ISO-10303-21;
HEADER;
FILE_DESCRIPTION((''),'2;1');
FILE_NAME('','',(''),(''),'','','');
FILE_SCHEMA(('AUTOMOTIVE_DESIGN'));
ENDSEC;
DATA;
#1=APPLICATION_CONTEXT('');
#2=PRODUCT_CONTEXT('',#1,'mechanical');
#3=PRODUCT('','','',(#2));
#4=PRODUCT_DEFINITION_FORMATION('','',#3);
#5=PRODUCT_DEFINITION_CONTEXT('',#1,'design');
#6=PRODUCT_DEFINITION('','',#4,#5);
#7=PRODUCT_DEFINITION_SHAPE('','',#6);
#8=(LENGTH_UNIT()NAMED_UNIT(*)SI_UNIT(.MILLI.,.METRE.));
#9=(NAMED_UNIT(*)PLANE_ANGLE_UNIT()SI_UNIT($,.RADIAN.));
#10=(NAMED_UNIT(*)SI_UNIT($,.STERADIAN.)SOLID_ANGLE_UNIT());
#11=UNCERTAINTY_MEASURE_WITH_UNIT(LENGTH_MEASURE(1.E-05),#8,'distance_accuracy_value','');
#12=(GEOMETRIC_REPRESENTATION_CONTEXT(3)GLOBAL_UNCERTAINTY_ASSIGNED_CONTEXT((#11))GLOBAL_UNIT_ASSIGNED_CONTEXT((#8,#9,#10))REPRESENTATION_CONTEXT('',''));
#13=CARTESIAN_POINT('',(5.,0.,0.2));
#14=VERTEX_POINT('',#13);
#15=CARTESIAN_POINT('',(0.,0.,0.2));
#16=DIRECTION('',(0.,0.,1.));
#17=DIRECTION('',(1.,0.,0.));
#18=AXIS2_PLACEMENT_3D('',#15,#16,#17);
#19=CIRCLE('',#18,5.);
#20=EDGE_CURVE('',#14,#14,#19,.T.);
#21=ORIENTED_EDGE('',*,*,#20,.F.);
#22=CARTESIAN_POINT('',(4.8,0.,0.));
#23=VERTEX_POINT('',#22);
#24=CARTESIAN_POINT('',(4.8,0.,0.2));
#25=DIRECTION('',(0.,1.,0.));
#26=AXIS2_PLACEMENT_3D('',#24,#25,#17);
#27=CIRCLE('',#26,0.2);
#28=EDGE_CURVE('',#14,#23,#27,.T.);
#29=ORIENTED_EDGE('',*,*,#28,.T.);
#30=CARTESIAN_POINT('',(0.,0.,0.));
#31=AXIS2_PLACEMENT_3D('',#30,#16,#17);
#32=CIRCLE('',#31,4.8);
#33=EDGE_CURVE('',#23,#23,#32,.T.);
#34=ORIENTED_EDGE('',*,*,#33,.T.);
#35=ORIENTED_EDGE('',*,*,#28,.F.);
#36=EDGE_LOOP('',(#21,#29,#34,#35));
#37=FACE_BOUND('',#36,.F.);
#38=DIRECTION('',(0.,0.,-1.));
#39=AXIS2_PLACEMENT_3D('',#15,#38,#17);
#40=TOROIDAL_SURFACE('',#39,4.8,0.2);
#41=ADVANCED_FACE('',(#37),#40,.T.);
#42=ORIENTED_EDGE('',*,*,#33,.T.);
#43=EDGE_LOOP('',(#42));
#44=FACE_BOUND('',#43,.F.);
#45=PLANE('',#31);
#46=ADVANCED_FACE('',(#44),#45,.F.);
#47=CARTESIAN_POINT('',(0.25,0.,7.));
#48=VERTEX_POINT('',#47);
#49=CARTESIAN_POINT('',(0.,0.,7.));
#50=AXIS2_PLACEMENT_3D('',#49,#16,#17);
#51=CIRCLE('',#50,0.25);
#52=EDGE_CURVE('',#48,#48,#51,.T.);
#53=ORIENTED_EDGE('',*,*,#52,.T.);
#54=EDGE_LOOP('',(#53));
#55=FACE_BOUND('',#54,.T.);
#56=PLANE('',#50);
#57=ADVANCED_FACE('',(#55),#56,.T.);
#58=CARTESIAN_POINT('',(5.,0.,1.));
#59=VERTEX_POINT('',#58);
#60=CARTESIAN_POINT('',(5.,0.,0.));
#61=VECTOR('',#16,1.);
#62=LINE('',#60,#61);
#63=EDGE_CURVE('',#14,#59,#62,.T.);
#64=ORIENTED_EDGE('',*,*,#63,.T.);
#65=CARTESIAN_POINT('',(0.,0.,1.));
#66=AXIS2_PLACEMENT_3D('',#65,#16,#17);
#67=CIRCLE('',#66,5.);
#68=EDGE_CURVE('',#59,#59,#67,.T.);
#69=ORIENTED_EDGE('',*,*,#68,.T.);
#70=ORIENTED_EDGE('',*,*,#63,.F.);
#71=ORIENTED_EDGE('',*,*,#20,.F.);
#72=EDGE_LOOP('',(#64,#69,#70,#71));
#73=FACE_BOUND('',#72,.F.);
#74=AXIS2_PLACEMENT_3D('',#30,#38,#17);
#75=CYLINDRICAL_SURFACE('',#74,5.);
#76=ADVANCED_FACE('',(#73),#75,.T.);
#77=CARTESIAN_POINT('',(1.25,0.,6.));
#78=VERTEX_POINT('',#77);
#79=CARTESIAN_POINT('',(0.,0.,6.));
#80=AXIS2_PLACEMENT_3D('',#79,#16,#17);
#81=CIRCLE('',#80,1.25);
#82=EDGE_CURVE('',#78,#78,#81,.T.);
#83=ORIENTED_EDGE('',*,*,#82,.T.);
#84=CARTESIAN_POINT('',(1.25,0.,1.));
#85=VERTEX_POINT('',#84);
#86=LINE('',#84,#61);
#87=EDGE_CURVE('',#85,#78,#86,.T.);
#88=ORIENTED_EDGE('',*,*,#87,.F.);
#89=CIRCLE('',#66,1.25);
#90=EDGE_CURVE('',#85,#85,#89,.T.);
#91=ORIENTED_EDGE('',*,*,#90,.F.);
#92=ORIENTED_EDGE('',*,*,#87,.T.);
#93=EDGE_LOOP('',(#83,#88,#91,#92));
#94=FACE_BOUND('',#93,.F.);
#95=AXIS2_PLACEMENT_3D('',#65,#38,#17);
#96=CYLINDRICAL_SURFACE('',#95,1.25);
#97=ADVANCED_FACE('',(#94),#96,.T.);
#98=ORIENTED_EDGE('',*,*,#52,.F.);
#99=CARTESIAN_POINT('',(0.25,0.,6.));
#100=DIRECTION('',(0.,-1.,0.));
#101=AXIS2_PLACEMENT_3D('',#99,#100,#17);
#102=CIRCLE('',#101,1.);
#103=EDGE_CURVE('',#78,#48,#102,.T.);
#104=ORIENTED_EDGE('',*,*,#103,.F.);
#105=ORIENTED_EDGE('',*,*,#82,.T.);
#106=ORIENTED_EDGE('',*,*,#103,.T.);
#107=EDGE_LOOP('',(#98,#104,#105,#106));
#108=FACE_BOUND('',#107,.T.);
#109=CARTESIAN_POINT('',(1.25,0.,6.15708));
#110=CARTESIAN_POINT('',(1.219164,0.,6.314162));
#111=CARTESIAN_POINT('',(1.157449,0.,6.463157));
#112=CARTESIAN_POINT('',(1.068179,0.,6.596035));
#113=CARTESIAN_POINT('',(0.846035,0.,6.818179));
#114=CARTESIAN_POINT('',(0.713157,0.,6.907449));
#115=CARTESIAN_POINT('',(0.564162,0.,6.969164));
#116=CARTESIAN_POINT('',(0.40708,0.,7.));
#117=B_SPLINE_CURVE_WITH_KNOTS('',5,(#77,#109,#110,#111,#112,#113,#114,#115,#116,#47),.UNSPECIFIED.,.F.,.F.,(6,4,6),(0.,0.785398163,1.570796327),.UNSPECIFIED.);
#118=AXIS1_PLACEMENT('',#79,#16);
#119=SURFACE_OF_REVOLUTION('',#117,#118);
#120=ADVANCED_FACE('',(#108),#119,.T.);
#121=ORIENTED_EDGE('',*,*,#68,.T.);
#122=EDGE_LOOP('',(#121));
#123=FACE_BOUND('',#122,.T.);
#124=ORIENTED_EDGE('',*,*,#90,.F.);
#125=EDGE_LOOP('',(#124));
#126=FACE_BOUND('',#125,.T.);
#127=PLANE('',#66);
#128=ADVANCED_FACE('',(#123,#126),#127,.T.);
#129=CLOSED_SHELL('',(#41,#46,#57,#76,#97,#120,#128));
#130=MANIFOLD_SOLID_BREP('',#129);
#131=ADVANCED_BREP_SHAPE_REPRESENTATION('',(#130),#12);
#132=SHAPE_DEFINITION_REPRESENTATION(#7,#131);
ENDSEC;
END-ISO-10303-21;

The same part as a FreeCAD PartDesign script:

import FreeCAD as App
import Part
import Sketcher
from FreeCAD import Vector
Q = App.Units.Quantity


def edges_at(feature, points):
    """Names of the edges that pass closest to the given points."""
    edges = feature.Shape.Edges
    near = lambda p: min(range(len(edges)), key=lambda i: edges[i].distToShape(Part.Vertex(*p))[0])
    return sorted({f"Edge{near(p) + 1}" for p in points})

doc = App.newDocument("Part")
body = doc.addObject("PartDesign::Body", "Body")

# Sketch on XY plane
sketch1 = body.newObject("Sketcher::SketchObject", "Sketch")
sketch1.AttachmentSupport = (doc.getObject("XY_Plane"), [""])
sketch1.MapMode = "FlatFace"
sketch1.addGeometry(Part.Circle(Vector(0, 0, 0), Vector(0, 0, 1), 5), False)
sketch1.addConstraint(Sketcher.Constraint("Coincident", 0, 3, -1, 1))
sketch1.addConstraint(Sketcher.Constraint("Diameter", 0, Q("10 mm")))
pad1 = body.newObject("PartDesign::Pad", "Pad")
pad1.Profile = sketch1
pad1.Length = 1

# Sketch on XY plane
sketch2 = body.newObject("Sketcher::SketchObject", "Sketch001")
sketch2.AttachmentSupport = (doc.getObject("XY_Plane"), [""])
sketch2.MapMode = "FlatFace"
sketch2.AttachmentOffset = App.Placement(Vector(0, 0, 1), App.Rotation())
sketch2.addGeometry(Part.Circle(Vector(0, 0, 0), Vector(0, 0, 1), 1.2), False)
sketch2.addConstraint(Sketcher.Constraint("Coincident", 0, 3, -1, 1))
sketch2.addConstraint(Sketcher.Constraint("Diameter", 0, Q("2.5 mm")))
pad2 = body.newObject("PartDesign::Pad", "Pad001")
pad2.Profile = sketch2
pad2.Length = 6
doc.recompute()

fillet = body.newObject("PartDesign::Fillet", "Fillet")
fillet.Base = (pad2, edges_at(pad2, [(-1.25, 0, 7)]))
fillet.Radius = 1
doc.recompute()

fillet2 = body.newObject("PartDesign::Fillet", "Fillet001")
fillet2.Base = (fillet, edges_at(fillet, [(-5, 0, 0)]))
fillet2.Radius = 0.2

doc.recompute()
